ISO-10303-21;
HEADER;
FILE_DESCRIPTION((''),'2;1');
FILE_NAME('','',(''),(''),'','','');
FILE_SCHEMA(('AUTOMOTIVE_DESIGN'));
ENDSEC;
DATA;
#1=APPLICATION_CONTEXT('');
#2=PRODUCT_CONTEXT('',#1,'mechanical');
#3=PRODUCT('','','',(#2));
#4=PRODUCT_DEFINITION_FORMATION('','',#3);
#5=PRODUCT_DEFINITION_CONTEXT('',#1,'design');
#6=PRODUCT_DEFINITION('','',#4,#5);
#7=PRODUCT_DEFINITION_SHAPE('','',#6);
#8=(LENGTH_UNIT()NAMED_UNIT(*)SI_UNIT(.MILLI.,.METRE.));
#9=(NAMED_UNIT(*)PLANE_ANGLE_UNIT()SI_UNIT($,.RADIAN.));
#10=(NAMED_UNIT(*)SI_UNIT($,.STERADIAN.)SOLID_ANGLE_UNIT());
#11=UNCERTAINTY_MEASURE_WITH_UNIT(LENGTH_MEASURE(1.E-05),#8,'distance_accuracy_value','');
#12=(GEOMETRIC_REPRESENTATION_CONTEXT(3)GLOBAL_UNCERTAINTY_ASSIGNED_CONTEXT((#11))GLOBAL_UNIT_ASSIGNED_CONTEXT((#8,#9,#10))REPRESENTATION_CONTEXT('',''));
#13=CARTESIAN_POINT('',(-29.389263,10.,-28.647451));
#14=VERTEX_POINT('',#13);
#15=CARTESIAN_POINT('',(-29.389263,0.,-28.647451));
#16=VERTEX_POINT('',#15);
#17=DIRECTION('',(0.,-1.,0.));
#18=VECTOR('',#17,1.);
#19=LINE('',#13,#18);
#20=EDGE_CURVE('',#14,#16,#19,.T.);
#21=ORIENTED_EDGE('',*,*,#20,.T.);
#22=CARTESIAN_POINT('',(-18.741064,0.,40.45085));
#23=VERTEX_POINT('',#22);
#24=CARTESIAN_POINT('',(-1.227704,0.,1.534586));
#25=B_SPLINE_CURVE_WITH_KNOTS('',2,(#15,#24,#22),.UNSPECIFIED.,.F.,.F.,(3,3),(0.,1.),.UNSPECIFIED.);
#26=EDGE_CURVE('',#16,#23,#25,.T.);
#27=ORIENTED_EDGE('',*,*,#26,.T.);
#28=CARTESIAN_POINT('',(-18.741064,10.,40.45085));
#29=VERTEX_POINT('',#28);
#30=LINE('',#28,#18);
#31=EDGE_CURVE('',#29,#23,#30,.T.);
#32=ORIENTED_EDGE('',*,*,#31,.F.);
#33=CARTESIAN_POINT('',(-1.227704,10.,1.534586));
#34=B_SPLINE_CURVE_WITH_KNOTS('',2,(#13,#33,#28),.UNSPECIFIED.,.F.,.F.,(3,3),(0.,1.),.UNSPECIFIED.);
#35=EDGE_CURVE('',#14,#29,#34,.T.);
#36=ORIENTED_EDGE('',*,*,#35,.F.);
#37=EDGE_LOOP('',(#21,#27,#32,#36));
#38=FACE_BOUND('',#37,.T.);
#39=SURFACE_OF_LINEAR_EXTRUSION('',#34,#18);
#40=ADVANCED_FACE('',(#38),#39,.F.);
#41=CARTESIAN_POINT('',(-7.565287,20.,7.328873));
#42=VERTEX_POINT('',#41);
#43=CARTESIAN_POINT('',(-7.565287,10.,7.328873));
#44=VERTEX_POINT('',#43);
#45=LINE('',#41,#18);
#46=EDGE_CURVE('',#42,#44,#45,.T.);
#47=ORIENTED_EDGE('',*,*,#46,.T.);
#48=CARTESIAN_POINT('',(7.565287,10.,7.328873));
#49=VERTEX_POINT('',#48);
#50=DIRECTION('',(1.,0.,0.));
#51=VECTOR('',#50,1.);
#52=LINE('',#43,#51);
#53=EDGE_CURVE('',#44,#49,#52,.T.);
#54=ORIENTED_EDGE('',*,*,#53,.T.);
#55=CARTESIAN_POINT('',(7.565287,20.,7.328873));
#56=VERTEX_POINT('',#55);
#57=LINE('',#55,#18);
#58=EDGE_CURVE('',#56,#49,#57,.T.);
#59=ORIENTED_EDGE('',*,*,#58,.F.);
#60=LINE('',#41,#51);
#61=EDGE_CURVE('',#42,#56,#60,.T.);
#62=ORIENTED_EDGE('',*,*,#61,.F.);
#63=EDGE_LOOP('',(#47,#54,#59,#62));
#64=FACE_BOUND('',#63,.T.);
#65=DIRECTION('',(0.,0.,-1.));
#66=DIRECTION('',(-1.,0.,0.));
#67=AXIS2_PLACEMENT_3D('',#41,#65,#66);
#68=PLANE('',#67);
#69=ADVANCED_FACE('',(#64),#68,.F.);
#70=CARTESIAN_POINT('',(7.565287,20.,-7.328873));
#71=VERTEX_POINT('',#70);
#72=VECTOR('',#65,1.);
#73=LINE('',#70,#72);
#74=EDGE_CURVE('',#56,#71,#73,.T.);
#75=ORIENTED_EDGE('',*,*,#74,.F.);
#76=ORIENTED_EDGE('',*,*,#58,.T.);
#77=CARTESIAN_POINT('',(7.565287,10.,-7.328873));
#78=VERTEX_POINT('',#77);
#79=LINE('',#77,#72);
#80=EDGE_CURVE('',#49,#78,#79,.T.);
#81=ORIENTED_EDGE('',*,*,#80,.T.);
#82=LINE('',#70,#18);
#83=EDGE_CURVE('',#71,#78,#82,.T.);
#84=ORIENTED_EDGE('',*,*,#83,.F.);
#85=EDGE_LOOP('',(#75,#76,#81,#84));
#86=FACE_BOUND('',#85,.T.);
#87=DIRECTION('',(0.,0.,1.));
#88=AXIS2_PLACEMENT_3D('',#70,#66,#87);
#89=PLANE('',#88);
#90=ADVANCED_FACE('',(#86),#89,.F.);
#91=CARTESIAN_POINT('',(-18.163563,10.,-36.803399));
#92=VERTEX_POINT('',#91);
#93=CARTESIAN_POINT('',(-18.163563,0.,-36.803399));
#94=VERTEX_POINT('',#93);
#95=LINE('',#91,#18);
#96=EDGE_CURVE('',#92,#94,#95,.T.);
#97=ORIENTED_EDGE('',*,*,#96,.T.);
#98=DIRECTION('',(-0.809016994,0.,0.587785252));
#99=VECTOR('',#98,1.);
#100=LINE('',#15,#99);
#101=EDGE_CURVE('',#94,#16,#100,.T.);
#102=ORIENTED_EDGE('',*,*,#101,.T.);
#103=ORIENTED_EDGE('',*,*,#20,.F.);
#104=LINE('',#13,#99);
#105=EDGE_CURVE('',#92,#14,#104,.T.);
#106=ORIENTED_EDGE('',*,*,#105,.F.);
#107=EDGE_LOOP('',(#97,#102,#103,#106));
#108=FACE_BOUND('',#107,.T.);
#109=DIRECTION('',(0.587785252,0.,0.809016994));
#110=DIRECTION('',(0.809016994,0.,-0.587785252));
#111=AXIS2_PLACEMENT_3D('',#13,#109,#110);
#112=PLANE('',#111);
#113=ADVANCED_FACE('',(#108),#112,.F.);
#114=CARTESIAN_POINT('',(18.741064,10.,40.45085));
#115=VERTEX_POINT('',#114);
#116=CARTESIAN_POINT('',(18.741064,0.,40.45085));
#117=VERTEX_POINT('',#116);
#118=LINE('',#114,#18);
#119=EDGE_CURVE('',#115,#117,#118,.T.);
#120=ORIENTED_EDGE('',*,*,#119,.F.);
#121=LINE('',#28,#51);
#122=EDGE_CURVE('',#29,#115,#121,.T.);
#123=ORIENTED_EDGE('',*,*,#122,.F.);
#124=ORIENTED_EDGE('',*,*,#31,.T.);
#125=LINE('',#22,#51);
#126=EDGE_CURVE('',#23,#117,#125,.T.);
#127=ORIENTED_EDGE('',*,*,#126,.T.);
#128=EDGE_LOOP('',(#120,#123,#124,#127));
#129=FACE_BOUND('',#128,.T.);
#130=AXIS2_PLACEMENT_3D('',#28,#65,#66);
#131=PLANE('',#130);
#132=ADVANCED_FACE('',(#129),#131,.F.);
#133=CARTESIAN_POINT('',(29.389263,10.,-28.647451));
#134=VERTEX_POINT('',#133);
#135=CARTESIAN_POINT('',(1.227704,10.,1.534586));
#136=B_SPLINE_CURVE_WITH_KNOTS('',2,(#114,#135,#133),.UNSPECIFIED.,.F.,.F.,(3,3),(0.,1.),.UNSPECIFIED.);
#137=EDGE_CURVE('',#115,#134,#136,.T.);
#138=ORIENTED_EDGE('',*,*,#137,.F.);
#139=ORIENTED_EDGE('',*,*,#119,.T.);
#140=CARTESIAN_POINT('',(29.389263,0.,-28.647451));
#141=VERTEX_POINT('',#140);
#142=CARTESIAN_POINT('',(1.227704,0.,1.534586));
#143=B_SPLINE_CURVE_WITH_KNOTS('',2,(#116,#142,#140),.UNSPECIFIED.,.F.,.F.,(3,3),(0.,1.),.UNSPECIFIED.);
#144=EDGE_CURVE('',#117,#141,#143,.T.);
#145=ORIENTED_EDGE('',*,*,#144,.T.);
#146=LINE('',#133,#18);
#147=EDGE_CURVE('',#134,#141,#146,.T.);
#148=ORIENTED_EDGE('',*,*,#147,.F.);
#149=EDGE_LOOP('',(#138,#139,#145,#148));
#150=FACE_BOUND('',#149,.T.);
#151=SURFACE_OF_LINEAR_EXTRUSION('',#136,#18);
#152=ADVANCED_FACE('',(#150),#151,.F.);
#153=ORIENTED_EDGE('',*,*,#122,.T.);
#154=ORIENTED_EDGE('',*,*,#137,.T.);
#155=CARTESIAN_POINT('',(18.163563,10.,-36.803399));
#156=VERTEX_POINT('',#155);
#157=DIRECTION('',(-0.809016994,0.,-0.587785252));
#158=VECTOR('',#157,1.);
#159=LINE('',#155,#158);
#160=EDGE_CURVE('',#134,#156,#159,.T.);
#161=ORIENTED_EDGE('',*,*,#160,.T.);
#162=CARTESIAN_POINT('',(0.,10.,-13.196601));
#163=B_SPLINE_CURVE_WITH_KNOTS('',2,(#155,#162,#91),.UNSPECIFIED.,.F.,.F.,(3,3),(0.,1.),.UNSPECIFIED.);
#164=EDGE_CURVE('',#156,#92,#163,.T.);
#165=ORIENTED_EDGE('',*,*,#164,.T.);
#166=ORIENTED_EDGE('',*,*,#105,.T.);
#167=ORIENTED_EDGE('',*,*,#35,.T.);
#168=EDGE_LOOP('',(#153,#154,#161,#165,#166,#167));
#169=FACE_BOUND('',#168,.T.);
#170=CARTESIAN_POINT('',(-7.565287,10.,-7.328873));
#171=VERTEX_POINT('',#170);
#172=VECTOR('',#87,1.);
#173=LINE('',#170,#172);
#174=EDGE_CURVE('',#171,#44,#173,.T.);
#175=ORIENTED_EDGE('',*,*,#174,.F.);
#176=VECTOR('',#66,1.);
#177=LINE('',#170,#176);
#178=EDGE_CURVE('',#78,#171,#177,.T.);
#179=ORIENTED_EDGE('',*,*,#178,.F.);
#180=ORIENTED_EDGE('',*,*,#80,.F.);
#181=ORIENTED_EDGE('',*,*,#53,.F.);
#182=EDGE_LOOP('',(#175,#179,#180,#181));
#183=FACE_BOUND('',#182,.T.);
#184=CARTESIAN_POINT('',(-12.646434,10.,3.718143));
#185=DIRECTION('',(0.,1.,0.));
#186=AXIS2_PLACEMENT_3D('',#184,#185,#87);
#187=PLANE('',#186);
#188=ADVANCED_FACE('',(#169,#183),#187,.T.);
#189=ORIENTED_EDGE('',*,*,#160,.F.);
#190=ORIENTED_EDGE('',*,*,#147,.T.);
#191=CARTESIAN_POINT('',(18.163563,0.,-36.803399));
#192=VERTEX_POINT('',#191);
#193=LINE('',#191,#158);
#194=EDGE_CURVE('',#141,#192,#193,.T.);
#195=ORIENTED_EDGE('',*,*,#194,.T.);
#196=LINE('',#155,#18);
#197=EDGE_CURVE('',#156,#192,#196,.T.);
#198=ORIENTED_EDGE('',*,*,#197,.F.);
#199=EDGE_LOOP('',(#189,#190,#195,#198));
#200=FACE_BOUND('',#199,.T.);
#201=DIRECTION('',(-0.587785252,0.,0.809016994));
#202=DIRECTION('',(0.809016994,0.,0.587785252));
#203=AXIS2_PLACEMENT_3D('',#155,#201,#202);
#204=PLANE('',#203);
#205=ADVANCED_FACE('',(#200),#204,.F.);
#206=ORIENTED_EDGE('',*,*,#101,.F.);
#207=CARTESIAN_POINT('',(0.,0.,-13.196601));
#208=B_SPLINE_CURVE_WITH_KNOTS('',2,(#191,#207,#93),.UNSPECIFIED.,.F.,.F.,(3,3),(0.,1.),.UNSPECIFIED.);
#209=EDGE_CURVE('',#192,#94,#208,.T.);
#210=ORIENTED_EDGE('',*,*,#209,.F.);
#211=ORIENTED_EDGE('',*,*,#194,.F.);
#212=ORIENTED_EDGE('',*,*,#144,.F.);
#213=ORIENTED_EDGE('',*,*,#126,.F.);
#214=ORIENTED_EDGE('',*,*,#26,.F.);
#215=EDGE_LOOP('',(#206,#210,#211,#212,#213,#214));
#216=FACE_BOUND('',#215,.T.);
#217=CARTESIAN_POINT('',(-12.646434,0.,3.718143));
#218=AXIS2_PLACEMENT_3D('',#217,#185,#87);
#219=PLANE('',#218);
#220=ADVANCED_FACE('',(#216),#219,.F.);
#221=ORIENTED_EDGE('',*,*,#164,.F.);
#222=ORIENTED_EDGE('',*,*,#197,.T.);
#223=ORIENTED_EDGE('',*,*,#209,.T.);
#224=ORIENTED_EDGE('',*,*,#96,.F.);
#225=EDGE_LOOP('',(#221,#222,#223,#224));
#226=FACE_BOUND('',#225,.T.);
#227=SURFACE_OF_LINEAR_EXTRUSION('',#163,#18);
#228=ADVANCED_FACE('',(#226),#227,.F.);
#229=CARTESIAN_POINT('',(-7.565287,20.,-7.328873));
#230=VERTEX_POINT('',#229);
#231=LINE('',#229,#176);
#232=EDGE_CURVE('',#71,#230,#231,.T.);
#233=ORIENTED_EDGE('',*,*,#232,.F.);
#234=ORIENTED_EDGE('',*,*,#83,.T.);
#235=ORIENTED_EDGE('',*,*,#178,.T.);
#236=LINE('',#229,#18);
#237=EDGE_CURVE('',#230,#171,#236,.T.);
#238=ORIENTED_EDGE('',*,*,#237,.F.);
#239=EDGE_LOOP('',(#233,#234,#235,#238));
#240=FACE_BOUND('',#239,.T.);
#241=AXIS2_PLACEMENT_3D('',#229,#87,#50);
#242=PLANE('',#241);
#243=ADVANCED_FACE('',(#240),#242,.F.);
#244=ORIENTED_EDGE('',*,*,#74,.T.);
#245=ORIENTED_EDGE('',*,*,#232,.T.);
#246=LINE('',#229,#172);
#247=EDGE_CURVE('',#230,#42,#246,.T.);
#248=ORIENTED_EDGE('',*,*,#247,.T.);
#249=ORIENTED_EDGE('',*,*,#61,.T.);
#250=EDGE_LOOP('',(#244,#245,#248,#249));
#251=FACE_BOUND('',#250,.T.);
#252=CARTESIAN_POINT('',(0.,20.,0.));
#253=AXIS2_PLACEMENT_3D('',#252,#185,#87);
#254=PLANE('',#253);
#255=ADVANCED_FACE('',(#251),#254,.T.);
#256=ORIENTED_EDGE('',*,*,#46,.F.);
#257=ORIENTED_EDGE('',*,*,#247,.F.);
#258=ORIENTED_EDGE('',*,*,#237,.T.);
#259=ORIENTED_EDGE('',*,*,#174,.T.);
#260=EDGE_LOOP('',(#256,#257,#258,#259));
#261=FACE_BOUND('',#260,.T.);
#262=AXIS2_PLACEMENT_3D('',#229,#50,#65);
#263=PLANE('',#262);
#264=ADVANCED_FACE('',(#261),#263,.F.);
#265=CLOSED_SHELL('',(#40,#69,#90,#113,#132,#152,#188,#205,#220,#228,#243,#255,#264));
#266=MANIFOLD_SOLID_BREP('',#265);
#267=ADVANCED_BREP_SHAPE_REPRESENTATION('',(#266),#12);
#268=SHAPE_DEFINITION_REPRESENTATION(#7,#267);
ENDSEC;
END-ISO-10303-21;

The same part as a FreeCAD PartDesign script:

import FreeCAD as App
import Part
import Sketcher
Q = App.Units.Quantity

doc = App.newDocument("Part")
body = doc.addObject("PartDesign::Body", "Body")

sketch1 = body.newObject("Sketcher::SketchObject", "Sketch")
sketch1.AttachmentSupport = (doc.getObject("XZ_Plane"), [""])
sketch1.MapMode = "FlatFace"
sketch1.addGeometry([
    Part.LineSegment(App.Vector(-18.741064, 40.45085, 0), App.Vector(18.741064, 40.45085, 0)),
    Part.BSplineCurve([App.Vector(29.389263, -28.647451, 0), App.Vector(1.227704, 1.534586, 0), App.Vector(18.741064, 40.45085, 0)], [3, 3], [0, 1], False, 2, [1, 1, 1], False),
    Part.LineSegment(App.Vector(29.389263, -28.647451, 0), App.Vector(18.163563, -36.803399, 0)),
    Part.BSplineCurve([App.Vector(-18.163563, -36.803399, 0), App.Vector(0, -13.196601, 0), App.Vector(18.163563, -36.803399, 0)], [3, 3], [0, 1], False, 2, [1, 1, 1], False),
    Part.LineSegment(App.Vector(-18.163563, -36.803399, 0), App.Vector(-29.389263, -28.647451, 0)),
    Part.BSplineCurve([App.Vector(-29.389263, -28.647451, 0), App.Vector(-1.227704, 1.534586, 0), App.Vector(-18.741064, 40.45085, 0)], [3, 3], [0, 1], False, 2, [1, 1, 1], False),
], False)
sketch1.addConstraint([
    Sketcher.Constraint("Block", 1),
    Sketcher.Constraint("Block", 3),
    Sketcher.Constraint("Block", 5),
    Sketcher.Constraint("Coincident", 0, 2, 1, 2),
    Sketcher.Constraint("Coincident", 1, 1, 2, 1),
    Sketcher.Constraint("Coincident", 2, 2, 3, 2),
    Sketcher.Constraint("Coincident", 3, 1, 4, 1),
    Sketcher.Constraint("Coincident", 4, 2, 5, 1),
    Sketcher.Constraint("Coincident", 5, 2, 0, 1),
])
pad1 = body.newObject("PartDesign::Pad", "Pad")
pad1.Profile = sketch1
pad1.Length = 10
pad1.Reversed = True

sketch2 = body.newObject("Sketcher::SketchObject", "Sketch001")
sketch2.AttachmentSupport = (doc.getObject("XZ_Plane"), [""])
sketch2.MapMode = "FlatFace"
sketch2.AttachmentOffset = App.Placement(App.Vector(0, 0, -10), App.Rotation())
sketch2.addGeometry([
    Part.LineSegment(App.Vector(-8, -7, 0), App.Vector(-8, 7, 0)),
    Part.LineSegment(App.Vector(-8, 7, 0), App.Vector(8, 7, 0)),
    Part.LineSegment(App.Vector(8, 7, 0), App.Vector(8, -7, 0)),
    Part.LineSegment(App.Vector(8, -7, 0), App.Vector(-8, -7, 0)),
], False)
sketch2.addConstraint([
    Sketcher.Constraint("Coincident", 0, 2, 1, 1),
    Sketcher.Constraint("Coincident", 1, 2, 2, 1),
    Sketcher.Constraint("Coincident", 2, 2, 3, 1),
    Sketcher.Constraint("Coincident", 3, 2, 0, 1),
    Sketcher.Constraint("Vertical", 0),
    Sketcher.Constraint("Horizontal", 1),
    Sketcher.Constraint("Vertical", 2),
    Sketcher.Constraint("Horizontal", 3),
    Sketcher.Constraint("Symmetric", 0, 2, 2, 2, -1, 1),
    Sketcher.Constraint("DistanceX", 1, 1, 1, 2, Q("15.130575 mm")),
    Sketcher.Constraint("DistanceY", 0, 1, 0, 2, Q("14.657746 mm")),
])
pad2 = body.newObject("PartDesign::Pad", "Pad001")
pad2.Profile = sketch2
pad2.Length = 10
pad2.Reversed = True

doc.recompute()
